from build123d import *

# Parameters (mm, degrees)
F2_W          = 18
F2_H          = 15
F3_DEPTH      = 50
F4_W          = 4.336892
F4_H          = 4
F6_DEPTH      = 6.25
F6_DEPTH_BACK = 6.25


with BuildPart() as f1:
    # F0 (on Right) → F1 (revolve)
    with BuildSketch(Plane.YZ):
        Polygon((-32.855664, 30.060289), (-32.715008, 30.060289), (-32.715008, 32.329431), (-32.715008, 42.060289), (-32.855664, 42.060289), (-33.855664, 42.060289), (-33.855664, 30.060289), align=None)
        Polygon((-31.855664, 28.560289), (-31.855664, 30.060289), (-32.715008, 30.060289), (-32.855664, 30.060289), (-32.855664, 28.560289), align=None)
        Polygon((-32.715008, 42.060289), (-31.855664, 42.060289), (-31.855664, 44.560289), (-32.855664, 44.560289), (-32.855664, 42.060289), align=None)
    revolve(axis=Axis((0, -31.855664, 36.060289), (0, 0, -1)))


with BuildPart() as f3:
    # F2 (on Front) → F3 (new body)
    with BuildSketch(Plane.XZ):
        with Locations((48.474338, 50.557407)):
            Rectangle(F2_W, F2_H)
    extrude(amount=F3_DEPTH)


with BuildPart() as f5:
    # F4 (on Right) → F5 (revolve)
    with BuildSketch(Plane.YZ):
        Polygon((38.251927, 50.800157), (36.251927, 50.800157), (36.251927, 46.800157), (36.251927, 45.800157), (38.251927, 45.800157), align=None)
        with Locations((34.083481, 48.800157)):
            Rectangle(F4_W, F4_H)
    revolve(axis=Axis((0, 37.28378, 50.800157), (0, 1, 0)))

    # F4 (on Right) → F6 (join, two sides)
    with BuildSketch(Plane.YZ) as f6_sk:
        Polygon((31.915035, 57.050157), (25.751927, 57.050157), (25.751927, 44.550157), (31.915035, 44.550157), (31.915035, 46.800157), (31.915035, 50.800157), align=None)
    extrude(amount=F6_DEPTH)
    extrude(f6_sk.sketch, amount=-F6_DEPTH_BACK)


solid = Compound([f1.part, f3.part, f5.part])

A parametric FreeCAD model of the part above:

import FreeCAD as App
import Part
import Sketcher
from FreeCAD import Vector

doc = App.newDocument("Part")
body = doc.addObject("PartDesign::Body", "Body")

# Sketch on YZ plane
sketch1 = doc.addObject("Sketcher::SketchObject", "Sketch")
body.addObject(sketch1)
sketch1.AttachmentSupport = (doc.YZ_Plane, [""])
sketch1.MapMode = "FlatFace"
sketch1.addGeometry(Part.LineSegment(Vector(-32.7, 30.1, 0), Vector(-32.7, 42.1, 0)), False)
sketch1.addGeometry(Part.LineSegment(Vector(-32.7, 42.1, 0), Vector(-31.9, 42.1, 0)), False)
sketch1.addGeometry(Part.LineSegment(Vector(-31.9, 42.1, 0), Vector(-31.9, 44.6, 0)), False)
sketch1.addGeometry(Part.LineSegment(Vector(-31.9, 44.6, 0), Vector(-32.9, 44.6, 0)), False)
sketch1.addGeometry(Part.LineSegment(Vector(-32.9, 44.6, 0), Vector(-32.9, 42.1, 0)), False)
sketch1.addGeometry(Part.LineSegment(Vector(-32.9, 42.1, 0), Vector(-33.9, 42.1, 0)), False)
sketch1.addGeometry(Part.LineSegment(Vector(-33.9, 42.1, 0), Vector(-33.9, 30.1, 0)), False)
sketch1.addGeometry(Part.LineSegment(Vector(-33.9, 30.1, 0), Vector(-32.9, 30.1, 0)), False)
sketch1.addGeometry(Part.LineSegment(Vector(-32.9, 30.1, 0), Vector(-32.9, 28.6, 0)), False)
sketch1.addGeometry(Part.LineSegment(Vector(-32.9, 28.6, 0), Vector(-31.9, 28.6, 0)), False)
sketch1.addGeometry(Part.LineSegment(Vector(-31.9, 28.6, 0), Vector(-31.9, 30.1, 0)), False)
sketch1.addGeometry(Part.LineSegment(Vector(-31.9, 30.1, 0), Vector(-32.7, 30.1, 0)), False)
sketch1.addGeometry(Part.LineSegment(Vector(-31.9, 44.6, 0), Vector(-31.9, 28.6, 0)), True)  # axis
sketch1.addConstraint(Sketcher.Constraint("Coincident", 0, 2, 1, 1))
sketch1.addConstraint(Sketcher.Constraint("Coincident", 1, 2, 2, 1))
sketch1.addConstraint(Sketcher.Constraint("Coincident", 2, 2, 3, 1))
sketch1.addConstraint(Sketcher.Constraint("Coincident", 3, 2, 4, 1))
sketch1.addConstraint(Sketcher.Constraint("Coincident", 4, 2, 5, 1))
sketch1.addConstraint(Sketcher.Constraint("Coincident", 5, 2, 6, 1))
sketch1.addConstraint(Sketcher.Constraint("Coincident", 6, 2, 7, 1))
sketch1.addConstraint(Sketcher.Constraint("Coincident", 7, 2, 8, 1))
sketch1.addConstraint(Sketcher.Constraint("Coincident", 8, 2, 9, 1))
sketch1.addConstraint(Sketcher.Constraint("Coincident", 9, 2, 10, 1))
sketch1.addConstraint(Sketcher.Constraint("Coincident", 10, 2, 11, 1))
sketch1.addConstraint(Sketcher.Constraint("Coincident", 11, 2, 0, 1))
sketch1.addConstraint(Sketcher.Constraint("Vertical", 0))
sketch1.addConstraint(Sketcher.Constraint("Horizontal", 1))
sketch1.addConstraint(Sketcher.Constraint("Vertical", 2))
sketch1.addConstraint(Sketcher.Constraint("Horizontal", 3))
sketch1.addConstraint(Sketcher.Constraint("Vertical", 4))
sketch1.addConstraint(Sketcher.Constraint("Horizontal", 5))
sketch1.addConstraint(Sketcher.Constraint("Vertical", 6))
sketch1.addConstraint(Sketcher.Constraint("Horizontal", 7))
sketch1.addConstraint(Sketcher.Constraint("Vertical", 8))
sketch1.addConstraint(Sketcher.Constraint("Horizontal", 9))
sketch1.addConstraint(Sketcher.Constraint("Vertical", 10))
sketch1.addConstraint(Sketcher.Constraint("Horizontal", 11))
sketch1.addConstraint(Sketcher.Constraint("Vertical", 12))
sketch1.addConstraint(Sketcher.Constraint("Coincident", 12, 1, 2, 2))
sketch1.addConstraint(Sketcher.Constraint("Coincident", 12, 2, 9, 2))
sketch1.addConstraint(Sketcher.Constraint("Horizontal", 1, 2, 4, 2))
sketch1.addConstraint(Sketcher.Constraint("Horizontal", 7, 2, 10, 2))
sketch1.addConstraint(Sketcher.Constraint("Vertical", 4, 2, 7, 2))
sketch1.addConstraint(Sketcher.Constraint("Equal", 3, 5))
sketch1.addConstraint(Sketcher.Constraint("DistanceX", 3, 2, 3, 1, 1.0))
sketch1.addConstraint(Sketcher.Constraint("DistanceY", 0, 1, 0, 2, 12.0))
sketch1.addConstraint(Sketcher.Constraint("DistanceY", 12, 2, 12, 1, 16.0))
sketch1.addConstraint(Sketcher.Constraint("DistanceY", 2, 1, 2, 2, 2.5))
sketch1.addConstraint(Sketcher.Constraint("DistanceX", 1, 1, 1, 2, 0.859344))
sketch1.addConstraint(Sketcher.Constraint("DistanceY", -1, 1, 0, 2, 42.060289))
sketch1.addConstraint(Sketcher.Constraint("DistanceX", 0, 2, -1, 1, 32.715008))
revolution = doc.addObject("PartDesign::Revolution", "Revolution")
body.addObject(revolution)
revolution.Profile = sketch1
revolution.ReferenceAxis = (sketch1, ["Axis0"])
revolution.Angle = 360
body2 = doc.addObject("PartDesign::Body", "Body001")

# Sketch on XZ plane
sketch2 = doc.addObject("Sketcher::SketchObject", "Sketch001")
body2.addObject(sketch2)
sketch2.AttachmentSupport = (doc.getObject("XZ_Plane001"), [""])
sketch2.MapMode = "FlatFace"
sketch2.addGeometry(Part.LineSegment(Vector(39, 58, 0), Vector(39, 43, 0)), False)
sketch2.addGeometry(Part.LineSegment(Vector(39, 43, 0), Vector(57, 43, 0)), False)
sketch2.addGeometry(Part.LineSegment(Vector(57, 43, 0), Vector(57, 58, 0)), False)
sketch2.addGeometry(Part.LineSegment(Vector(57, 58, 0), Vector(39, 58, 0)), False)
sketch2.addConstraint(Sketcher.Constraint("Coincident", 0, 2, 1, 1))
sketch2.addConstraint(Sketcher.Constraint("Coincident", 1, 2, 2, 1))
sketch2.addConstraint(Sketcher.Constraint("Coincident", 2, 2, 3, 1))
sketch2.addConstraint(Sketcher.Constraint("Coincident", 3, 2, 0, 1))
sketch2.addConstraint(Sketcher.Constraint("Vertical", 0))
sketch2.addConstraint(Sketcher.Constraint("Horizontal", 1))
sketch2.addConstraint(Sketcher.Constraint("Vertical", 2))
sketch2.addConstraint(Sketcher.Constraint("Horizontal", 3))
sketch2.addConstraint(Sketcher.Constraint("DistanceX", 1, 1, 1, 2, 18.0))
sketch2.addConstraint(Sketcher.Constraint("DistanceY", 0, 2, 0, 1, 15.0))
sketch2.addConstraint(Sketcher.Constraint("DistanceX", -1, 1, 0, 2, 39.474338))
sketch2.addConstraint(Sketcher.Constraint("DistanceY", -1, 1, 0, 2, 43.057407))
pad1 = doc.addObject("PartDesign::Pad", "Pad")
body2.addObject(pad1)
pad1.Profile = sketch2
pad1.Length = 50
body3 = doc.addObject("PartDesign::Body", "Body002")

# Sketch on YZ plane
sketch3 = doc.addObject("Sketcher::SketchObject", "Sketch002")
body3.addObject(sketch3)
sketch3.AttachmentSupport = (doc.getObject("YZ_Plane002"), [""])
sketch3.MapMode = "FlatFace"
sketch3.addGeometry(Part.LineSegment(Vector(38.3, 50.8, 0), Vector(31.9, 50.8, 0)), False)
sketch3.addGeometry(Part.LineSegment(Vector(31.9, 50.8, 0), Vector(31.9, 46.8, 0)), False)
sketch3.addGeometry(Part.LineSegment(Vector(31.9, 46.8, 0), Vector(36.3, 46.8, 0)), False)
sketch3.addGeometry(Part.LineSegment(Vector(36.3, 46.8, 0), Vector(36.3, 45.8, 0)), False)
sketch3.addGeometry(Part.LineSegment(Vector(36.3, 45.8, 0), Vector(38.3, 45.8, 0)), False)
sketch3.addGeometry(Part.LineSegment(Vector(38.3, 45.8, 0), Vector(38.3, 50.8, 0)), False)
sketch3.addGeometry(Part.LineSegment(Vector(31.9, 50.8, 0), Vector(38.3, 50.8, 0)), True)  # axis
sketch3.addConstraint(Sketcher.Constraint("Coincident", 0, 2, 1, 1))
sketch3.addConstraint(Sketcher.Constraint("Coincident", 1, 2, 2, 1))
sketch3.addConstraint(Sketcher.Constraint("Coincident", 2, 2, 3, 1))
sketch3.addConstraint(Sketcher.Constraint("Coincident", 3, 2, 4, 1))
sketch3.addConstraint(Sketcher.Constraint("Coincident", 4, 2, 5, 1))
sketch3.addConstraint(Sketcher.Constraint("Coincident", 5, 2, 0, 1))
sketch3.addConstraint(Sketcher.Constraint("Horizontal", 0))
sketch3.addConstraint(Sketcher.Constraint("Vertical", 1))
sketch3.addConstraint(Sketcher.Constraint("Horizontal", 2))
sketch3.addConstraint(Sketcher.Constraint("Vertical", 3))
sketch3.addConstraint(Sketcher.Constraint("Horizontal", 4))
sketch3.addConstraint(Sketcher.Constraint("Vertical", 5))
sketch3.addConstraint(Sketcher.Constraint("Horizontal", 6))
sketch3.addConstraint(Sketcher.Constraint("Coincident", 6, 1, 0, 2))
sketch3.addConstraint(Sketcher.Constraint("Vertical", 4, 2, 6, 2))
sketch3.addConstraint(Sketcher.Constraint("DistanceX", 4, 1, 4, 2, 2.0))
sketch3.addConstraint(Sketcher.Constraint("DistanceY", 1, 2, 1, 1, 4.0))
sketch3.addConstraint(Sketcher.Constraint("DistanceY", 3, 2, 3, 1, 1.0))
sketch3.addConstraint(Sketcher.Constraint("DistanceX", 0, 2, 0, 1, 6.336892))
sketch3.addConstraint(Sketcher.Constraint("DistanceX", -1, 1, 0, 2, 31.915035))
sketch3.addConstraint(Sketcher.Constraint("DistanceY", -1, 1, 0, 2, 50.800157))
revolution2 = doc.addObject("PartDesign::Revolution", "Revolution001")
body3.addObject(revolution2)
revolution2.Profile = sketch3
revolution2.ReferenceAxis = (sketch3, ["Axis0"])
revolution2.Angle = 360

# Sketch on YZ plane
sketch4 = doc.addObject("Sketcher::SketchObject", "Sketch003")
body3.addObject(sketch4)
sketch4.AttachmentSupport = (doc.getObject("YZ_Plane002"), [""])
sketch4.MapMode = "FlatFace"
sketch4.addGeometry(Part.LineSegment(Vector(32, 57, 0), Vector(26, 57, 0)), False)
sketch4.addGeometry(Part.LineSegment(Vector(26, 57, 0), Vector(26, 45, 0)), False)
sketch4.addGeometry(Part.LineSegment(Vector(26, 45, 0), Vector(32, 45, 0)), False)
sketch4.addGeometry(Part.LineSegment(Vector(32, 45, 0), Vector(32, 57, 0)), False)
sketch4.addConstraint(Sketcher.Constraint("Coincident", 0, 2, 1, 1))
sketch4.addConstraint(Sketcher.Constraint("Coincident", 1, 2, 2, 1))
sketch4.addConstraint(Sketcher.Constraint("Coincident", 2, 2, 3, 1))
sketch4.addConstraint(Sketcher.Constraint("Coincident", 3, 2, 0, 1))
sketch4.addConstraint(Sketcher.Constraint("Horizontal", 0))
sketch4.addConstraint(Sketcher.Constraint("Vertical", 1))
sketch4.addConstraint(Sketcher.Constraint("Horizontal", 2))
sketch4.addConstraint(Sketcher.Constraint("Vertical", 3))
sketch4.addConstraint(Sketcher.Constraint("DistanceY", 1, 2, 1, 1, 12.5))
sketch4.addConstraint(Sketcher.Constraint("DistanceX", 0, 2, 0, 1, 6.163108))
sketch4.addConstraint(Sketcher.Constraint("DistanceX", -1, 1, 0, 2, 25.751927))
sketch4.addConstraint(Sketcher.Constraint("DistanceY", -1, 1, 0, 2, 57.050157))
pad2 = doc.addObject("PartDesign::Pad", "Pad001")
body3.addObject(pad2)
pad2.Profile = sketch4
pad2.Type = "TwoLengths"
pad2.Length = 6.25
pad2.Length2 = 6.25

doc.recompute()
